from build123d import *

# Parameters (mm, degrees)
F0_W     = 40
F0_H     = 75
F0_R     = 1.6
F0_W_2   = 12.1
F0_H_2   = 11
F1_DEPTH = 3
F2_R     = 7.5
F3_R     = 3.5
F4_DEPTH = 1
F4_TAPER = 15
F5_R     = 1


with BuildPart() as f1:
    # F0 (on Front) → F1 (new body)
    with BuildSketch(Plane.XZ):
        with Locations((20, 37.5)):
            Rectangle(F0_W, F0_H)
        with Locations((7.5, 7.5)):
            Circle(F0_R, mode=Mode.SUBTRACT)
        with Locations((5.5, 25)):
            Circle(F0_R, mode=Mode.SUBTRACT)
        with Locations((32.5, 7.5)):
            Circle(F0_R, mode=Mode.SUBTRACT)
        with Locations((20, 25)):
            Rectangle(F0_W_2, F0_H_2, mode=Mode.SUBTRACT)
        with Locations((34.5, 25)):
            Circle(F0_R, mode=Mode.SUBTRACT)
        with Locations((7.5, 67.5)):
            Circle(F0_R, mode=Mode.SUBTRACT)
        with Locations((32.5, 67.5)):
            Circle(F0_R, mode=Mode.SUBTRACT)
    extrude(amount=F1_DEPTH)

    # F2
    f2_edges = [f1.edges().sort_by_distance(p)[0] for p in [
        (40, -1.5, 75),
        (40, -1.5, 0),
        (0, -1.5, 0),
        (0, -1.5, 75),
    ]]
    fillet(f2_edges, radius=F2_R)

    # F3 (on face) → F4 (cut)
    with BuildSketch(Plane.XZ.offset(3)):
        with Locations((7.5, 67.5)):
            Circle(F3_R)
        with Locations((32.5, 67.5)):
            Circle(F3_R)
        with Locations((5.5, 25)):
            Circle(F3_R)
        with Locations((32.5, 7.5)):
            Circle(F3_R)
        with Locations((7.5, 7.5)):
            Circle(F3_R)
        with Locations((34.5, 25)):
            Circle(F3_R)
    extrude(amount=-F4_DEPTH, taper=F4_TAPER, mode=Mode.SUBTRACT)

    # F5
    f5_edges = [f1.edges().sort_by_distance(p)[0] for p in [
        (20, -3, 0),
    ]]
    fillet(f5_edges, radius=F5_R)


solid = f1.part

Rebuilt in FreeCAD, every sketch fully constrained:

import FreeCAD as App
import Part
import Sketcher

V = App.Vector


def edges_at(feature, points):
    """Names of the edges that pass closest to the given points."""
    edges = feature.Shape.Edges
    near = lambda p: min(range(len(edges)), key=lambda i: edges[i].distToShape(Part.Vertex(*p))[0])
    return sorted({f"Edge{near(p) + 1}" for p in points})

doc = App.newDocument("Part")
body = doc.addObject("PartDesign::Body", "Body")

# Sketch on XZ plane
sketch1 = body.newObject("Sketcher::SketchObject", "Sketch")
sketch1.AttachmentSupport = (doc.getObject("XZ_Plane"), [""])
sketch1.MapMode = "FlatFace"
sketch1.addGeometry([
    Part.LineSegment(V(0, 75, 0), V(0, 0, 0)),  # 0
    Part.LineSegment(V(0, 0, 0), V(40, 0, 0)),  # 1
    Part.LineSegment(V(40, 0, 0), V(40, 75, 0)),  # 2
    Part.LineSegment(V(40, 75, 0), V(0, 75, 0)),  # 3
    Part.Circle(V(7.5, 7.5, 0), V(0, 0, 1), 1.6),  # 4
    Part.Circle(V(5.5, 25, 0), V(0, 0, 1), 1.6),  # 5
    Part.Circle(V(32.5, 7.5, 0), V(0, 0, 1), 1.6),  # 6
    Part.LineSegment(V(26.05, 19.5, 0), V(13.95, 19.5, 0)),  # 7
    Part.LineSegment(V(13.95, 19.5, 0), V(13.95, 30.5, 0)),  # 8
    Part.LineSegment(V(13.95, 30.5, 0), V(26.05, 30.5, 0)),  # 9
    Part.LineSegment(V(26.05, 30.5, 0), V(26.05, 19.5, 0)),  # 10
    Part.Circle(V(34.5, 25, 0), V(0, 0, 1), 1.6),  # 11
    Part.Circle(V(7.5, 67.5, 0), V(0, 0, 1), 1.6),  # 12
    Part.Circle(V(32.5, 67.5, 0), V(0, 0, 1), 1.6),  # 13
], False)
sketch1.addConstraint([
    Sketcher.Constraint("Coincident", 0, 2, 1, 1),
    Sketcher.Constraint("Coincident", 1, 2, 2, 1),
    Sketcher.Constraint("Coincident", 2, 2, 3, 1),
    Sketcher.Constraint("Coincident", 3, 2, 0, 1),
    Sketcher.Constraint("Coincident", 7, 2, 8, 1),
    Sketcher.Constraint("Coincident", 8, 2, 9, 1),
    Sketcher.Constraint("Coincident", 9, 2, 10, 1),
    Sketcher.Constraint("Coincident", 10, 2, 7, 1),
    Sketcher.Constraint("Vertical", 0),
    Sketcher.Constraint("Horizontal", 1),
    Sketcher.Constraint("Vertical", 2),
    Sketcher.Constraint("Horizontal", 3),
    Sketcher.Constraint("Horizontal", 7),
    Sketcher.Constraint("Vertical", 8),
    Sketcher.Constraint("Horizontal", 9),
    Sketcher.Constraint("Vertical", 10),
    Sketcher.Constraint("Coincident", 0, 2, -1, 1),
    Sketcher.Constraint("Equal", 4, 5),
    Sketcher.Constraint("Equal", 5, 6),
    Sketcher.Constraint("Equal", 6, 11),
    Sketcher.Constraint("Equal", 11, 12),
    Sketcher.Constraint("Equal", 12, 13),
    Sketcher.Constraint("Horizontal", 4, 3, 6, 3),
    Sketcher.Constraint("Horizontal", 5, 3, 11, 3),
    Sketcher.Constraint("Horizontal", 12, 3, 13, 3),
    Sketcher.Constraint("Vertical", 4, 3, 12, 3),
    Sketcher.Constraint("Vertical", 6, 3, 13, 3),
    Sketcher.Constraint("Diameter", 4, 3.2),
    Sketcher.Constraint("DistanceX", 1, 1, 1, 2, 40.0),
    Sketcher.Constraint("DistanceY", 0, 2, 0, 1, 75.0),
    Sketcher.Constraint("DistanceY", 8, 1, 8, 2, 11.0),
    Sketcher.Constraint("DistanceX", 7, 2, 7, 1, 12.1),
    Sketcher.Constraint("DistanceY", -1, 1, 5, 3, 25.0),
    Sketcher.Constraint("DistanceX", 5, 3, 4, 3, 2.0),
    Sketcher.Constraint("DistanceX", 4, 3, 6, 3, 25.0),
    Sketcher.Constraint("DistanceX", 6, 3, 11, 3, 2.0),
    Sketcher.Constraint("DistanceY", 4, 3, 12, 3, 60.0),
    Sketcher.Constraint("DistanceY", 4, 3, 7, 2, 12.0),
    Sketcher.Constraint("DistanceX", -1, 1, 4, 3, 7.5),
    Sketcher.Constraint("DistanceY", -1, 1, 4, 3, 7.5),
    Sketcher.Constraint("DistanceX", -1, 1, 7, 2, 13.95),
])
pad1 = body.newObject("PartDesign::Pad", "Pad")
pad1.Profile = sketch1
pad1.Length = 3
doc.recompute()

fillet = body.newObject("PartDesign::Fillet", "Fillet")
fillet.Base = (pad1, edges_at(pad1, [
    (40, -1.5, 75),
    (40, -1.5, 0),
    (0, -1.5, 0),
    (0, -1.5, 75),
]))
fillet.Radius = 7.5

# Sketch on XZ plane
sketch2 = body.newObject("Sketcher::SketchObject", "Sketch001")
sketch2.AttachmentSupport = (doc.getObject("XZ_Plane"), [""])
sketch2.MapMode = "FlatFace"
sketch2.AttachmentOffset = App.Placement(V(0, 0, 3), App.Rotation())
sketch2.addGeometry([
    Part.Circle(V(7.5, 67.5, 0), V(0, 0, 1), 3.5),  # 0
    Part.Circle(V(32.5, 67.5, 0), V(0, 0, 1), 3.5),  # 1
    Part.Circle(V(5.5, 25, 0), V(0, 0, 1), 3.5),  # 2
    Part.Circle(V(32.5, 7.5, 0), V(0, 0, 1), 3.5),  # 3
    Part.Circle(V(7.5, 7.5, 0), V(0, 0, 1), 3.5),  # 4
    Part.Circle(V(34.5, 25, 0), V(0, 0, 1), 3.5),  # 5
], False)
sketch2.addConstraint([
    Sketcher.Constraint("Equal", 0, 1),
    Sketcher.Constraint("Equal", 1, 2),
    Sketcher.Constraint("Equal", 2, 3),
    Sketcher.Constraint("Equal", 3, 4),
    Sketcher.Constraint("Equal", 4, 5),
    Sketcher.Constraint("Horizontal", 0, 3, 1, 3),
    Sketcher.Constraint("Horizontal", 3, 3, 4, 3),
    Sketcher.Constraint("Horizontal", 2, 3, 5, 3),
    Sketcher.Constraint("Vertical", 1, 3, 3, 3),
    Sketcher.Constraint("Vertical", 0, 3, 4, 3),
    Sketcher.Constraint("Diameter", 0, 7.0),
    Sketcher.Constraint("DistanceY", -1, 1, 2, 3, 25.0),
    Sketcher.Constraint("DistanceX", 0, 3, 1, 3, 25.0),
    Sketcher.Constraint("DistanceX", 2, 3, 0, 3, 2.0),
    Sketcher.Constraint("DistanceY", 3, 3, 1, 3, 60.0),
    Sketcher.Constraint("DistanceX", 3, 3, 5, 3, 2.0),
    Sketcher.Constraint("DistanceX", -1, 1, 0, 3, 7.5),
    Sketcher.Constraint("DistanceY", -1, 1, 0, 3, 67.5),
])
pocket1 = body.newObject("PartDesign::Pocket", "Pocket")
pocket1.Profile = sketch2
pocket1.Length = 1
pocket1.TaperAngle = -15
doc.recompute()

fillet2 = body.newObject("PartDesign::Fillet", "Fillet001")
fillet2.Base = (pocket1, edges_at(pocket1, [(20, -3, 0)]))
fillet2.Radius = 1

doc.recompute()
